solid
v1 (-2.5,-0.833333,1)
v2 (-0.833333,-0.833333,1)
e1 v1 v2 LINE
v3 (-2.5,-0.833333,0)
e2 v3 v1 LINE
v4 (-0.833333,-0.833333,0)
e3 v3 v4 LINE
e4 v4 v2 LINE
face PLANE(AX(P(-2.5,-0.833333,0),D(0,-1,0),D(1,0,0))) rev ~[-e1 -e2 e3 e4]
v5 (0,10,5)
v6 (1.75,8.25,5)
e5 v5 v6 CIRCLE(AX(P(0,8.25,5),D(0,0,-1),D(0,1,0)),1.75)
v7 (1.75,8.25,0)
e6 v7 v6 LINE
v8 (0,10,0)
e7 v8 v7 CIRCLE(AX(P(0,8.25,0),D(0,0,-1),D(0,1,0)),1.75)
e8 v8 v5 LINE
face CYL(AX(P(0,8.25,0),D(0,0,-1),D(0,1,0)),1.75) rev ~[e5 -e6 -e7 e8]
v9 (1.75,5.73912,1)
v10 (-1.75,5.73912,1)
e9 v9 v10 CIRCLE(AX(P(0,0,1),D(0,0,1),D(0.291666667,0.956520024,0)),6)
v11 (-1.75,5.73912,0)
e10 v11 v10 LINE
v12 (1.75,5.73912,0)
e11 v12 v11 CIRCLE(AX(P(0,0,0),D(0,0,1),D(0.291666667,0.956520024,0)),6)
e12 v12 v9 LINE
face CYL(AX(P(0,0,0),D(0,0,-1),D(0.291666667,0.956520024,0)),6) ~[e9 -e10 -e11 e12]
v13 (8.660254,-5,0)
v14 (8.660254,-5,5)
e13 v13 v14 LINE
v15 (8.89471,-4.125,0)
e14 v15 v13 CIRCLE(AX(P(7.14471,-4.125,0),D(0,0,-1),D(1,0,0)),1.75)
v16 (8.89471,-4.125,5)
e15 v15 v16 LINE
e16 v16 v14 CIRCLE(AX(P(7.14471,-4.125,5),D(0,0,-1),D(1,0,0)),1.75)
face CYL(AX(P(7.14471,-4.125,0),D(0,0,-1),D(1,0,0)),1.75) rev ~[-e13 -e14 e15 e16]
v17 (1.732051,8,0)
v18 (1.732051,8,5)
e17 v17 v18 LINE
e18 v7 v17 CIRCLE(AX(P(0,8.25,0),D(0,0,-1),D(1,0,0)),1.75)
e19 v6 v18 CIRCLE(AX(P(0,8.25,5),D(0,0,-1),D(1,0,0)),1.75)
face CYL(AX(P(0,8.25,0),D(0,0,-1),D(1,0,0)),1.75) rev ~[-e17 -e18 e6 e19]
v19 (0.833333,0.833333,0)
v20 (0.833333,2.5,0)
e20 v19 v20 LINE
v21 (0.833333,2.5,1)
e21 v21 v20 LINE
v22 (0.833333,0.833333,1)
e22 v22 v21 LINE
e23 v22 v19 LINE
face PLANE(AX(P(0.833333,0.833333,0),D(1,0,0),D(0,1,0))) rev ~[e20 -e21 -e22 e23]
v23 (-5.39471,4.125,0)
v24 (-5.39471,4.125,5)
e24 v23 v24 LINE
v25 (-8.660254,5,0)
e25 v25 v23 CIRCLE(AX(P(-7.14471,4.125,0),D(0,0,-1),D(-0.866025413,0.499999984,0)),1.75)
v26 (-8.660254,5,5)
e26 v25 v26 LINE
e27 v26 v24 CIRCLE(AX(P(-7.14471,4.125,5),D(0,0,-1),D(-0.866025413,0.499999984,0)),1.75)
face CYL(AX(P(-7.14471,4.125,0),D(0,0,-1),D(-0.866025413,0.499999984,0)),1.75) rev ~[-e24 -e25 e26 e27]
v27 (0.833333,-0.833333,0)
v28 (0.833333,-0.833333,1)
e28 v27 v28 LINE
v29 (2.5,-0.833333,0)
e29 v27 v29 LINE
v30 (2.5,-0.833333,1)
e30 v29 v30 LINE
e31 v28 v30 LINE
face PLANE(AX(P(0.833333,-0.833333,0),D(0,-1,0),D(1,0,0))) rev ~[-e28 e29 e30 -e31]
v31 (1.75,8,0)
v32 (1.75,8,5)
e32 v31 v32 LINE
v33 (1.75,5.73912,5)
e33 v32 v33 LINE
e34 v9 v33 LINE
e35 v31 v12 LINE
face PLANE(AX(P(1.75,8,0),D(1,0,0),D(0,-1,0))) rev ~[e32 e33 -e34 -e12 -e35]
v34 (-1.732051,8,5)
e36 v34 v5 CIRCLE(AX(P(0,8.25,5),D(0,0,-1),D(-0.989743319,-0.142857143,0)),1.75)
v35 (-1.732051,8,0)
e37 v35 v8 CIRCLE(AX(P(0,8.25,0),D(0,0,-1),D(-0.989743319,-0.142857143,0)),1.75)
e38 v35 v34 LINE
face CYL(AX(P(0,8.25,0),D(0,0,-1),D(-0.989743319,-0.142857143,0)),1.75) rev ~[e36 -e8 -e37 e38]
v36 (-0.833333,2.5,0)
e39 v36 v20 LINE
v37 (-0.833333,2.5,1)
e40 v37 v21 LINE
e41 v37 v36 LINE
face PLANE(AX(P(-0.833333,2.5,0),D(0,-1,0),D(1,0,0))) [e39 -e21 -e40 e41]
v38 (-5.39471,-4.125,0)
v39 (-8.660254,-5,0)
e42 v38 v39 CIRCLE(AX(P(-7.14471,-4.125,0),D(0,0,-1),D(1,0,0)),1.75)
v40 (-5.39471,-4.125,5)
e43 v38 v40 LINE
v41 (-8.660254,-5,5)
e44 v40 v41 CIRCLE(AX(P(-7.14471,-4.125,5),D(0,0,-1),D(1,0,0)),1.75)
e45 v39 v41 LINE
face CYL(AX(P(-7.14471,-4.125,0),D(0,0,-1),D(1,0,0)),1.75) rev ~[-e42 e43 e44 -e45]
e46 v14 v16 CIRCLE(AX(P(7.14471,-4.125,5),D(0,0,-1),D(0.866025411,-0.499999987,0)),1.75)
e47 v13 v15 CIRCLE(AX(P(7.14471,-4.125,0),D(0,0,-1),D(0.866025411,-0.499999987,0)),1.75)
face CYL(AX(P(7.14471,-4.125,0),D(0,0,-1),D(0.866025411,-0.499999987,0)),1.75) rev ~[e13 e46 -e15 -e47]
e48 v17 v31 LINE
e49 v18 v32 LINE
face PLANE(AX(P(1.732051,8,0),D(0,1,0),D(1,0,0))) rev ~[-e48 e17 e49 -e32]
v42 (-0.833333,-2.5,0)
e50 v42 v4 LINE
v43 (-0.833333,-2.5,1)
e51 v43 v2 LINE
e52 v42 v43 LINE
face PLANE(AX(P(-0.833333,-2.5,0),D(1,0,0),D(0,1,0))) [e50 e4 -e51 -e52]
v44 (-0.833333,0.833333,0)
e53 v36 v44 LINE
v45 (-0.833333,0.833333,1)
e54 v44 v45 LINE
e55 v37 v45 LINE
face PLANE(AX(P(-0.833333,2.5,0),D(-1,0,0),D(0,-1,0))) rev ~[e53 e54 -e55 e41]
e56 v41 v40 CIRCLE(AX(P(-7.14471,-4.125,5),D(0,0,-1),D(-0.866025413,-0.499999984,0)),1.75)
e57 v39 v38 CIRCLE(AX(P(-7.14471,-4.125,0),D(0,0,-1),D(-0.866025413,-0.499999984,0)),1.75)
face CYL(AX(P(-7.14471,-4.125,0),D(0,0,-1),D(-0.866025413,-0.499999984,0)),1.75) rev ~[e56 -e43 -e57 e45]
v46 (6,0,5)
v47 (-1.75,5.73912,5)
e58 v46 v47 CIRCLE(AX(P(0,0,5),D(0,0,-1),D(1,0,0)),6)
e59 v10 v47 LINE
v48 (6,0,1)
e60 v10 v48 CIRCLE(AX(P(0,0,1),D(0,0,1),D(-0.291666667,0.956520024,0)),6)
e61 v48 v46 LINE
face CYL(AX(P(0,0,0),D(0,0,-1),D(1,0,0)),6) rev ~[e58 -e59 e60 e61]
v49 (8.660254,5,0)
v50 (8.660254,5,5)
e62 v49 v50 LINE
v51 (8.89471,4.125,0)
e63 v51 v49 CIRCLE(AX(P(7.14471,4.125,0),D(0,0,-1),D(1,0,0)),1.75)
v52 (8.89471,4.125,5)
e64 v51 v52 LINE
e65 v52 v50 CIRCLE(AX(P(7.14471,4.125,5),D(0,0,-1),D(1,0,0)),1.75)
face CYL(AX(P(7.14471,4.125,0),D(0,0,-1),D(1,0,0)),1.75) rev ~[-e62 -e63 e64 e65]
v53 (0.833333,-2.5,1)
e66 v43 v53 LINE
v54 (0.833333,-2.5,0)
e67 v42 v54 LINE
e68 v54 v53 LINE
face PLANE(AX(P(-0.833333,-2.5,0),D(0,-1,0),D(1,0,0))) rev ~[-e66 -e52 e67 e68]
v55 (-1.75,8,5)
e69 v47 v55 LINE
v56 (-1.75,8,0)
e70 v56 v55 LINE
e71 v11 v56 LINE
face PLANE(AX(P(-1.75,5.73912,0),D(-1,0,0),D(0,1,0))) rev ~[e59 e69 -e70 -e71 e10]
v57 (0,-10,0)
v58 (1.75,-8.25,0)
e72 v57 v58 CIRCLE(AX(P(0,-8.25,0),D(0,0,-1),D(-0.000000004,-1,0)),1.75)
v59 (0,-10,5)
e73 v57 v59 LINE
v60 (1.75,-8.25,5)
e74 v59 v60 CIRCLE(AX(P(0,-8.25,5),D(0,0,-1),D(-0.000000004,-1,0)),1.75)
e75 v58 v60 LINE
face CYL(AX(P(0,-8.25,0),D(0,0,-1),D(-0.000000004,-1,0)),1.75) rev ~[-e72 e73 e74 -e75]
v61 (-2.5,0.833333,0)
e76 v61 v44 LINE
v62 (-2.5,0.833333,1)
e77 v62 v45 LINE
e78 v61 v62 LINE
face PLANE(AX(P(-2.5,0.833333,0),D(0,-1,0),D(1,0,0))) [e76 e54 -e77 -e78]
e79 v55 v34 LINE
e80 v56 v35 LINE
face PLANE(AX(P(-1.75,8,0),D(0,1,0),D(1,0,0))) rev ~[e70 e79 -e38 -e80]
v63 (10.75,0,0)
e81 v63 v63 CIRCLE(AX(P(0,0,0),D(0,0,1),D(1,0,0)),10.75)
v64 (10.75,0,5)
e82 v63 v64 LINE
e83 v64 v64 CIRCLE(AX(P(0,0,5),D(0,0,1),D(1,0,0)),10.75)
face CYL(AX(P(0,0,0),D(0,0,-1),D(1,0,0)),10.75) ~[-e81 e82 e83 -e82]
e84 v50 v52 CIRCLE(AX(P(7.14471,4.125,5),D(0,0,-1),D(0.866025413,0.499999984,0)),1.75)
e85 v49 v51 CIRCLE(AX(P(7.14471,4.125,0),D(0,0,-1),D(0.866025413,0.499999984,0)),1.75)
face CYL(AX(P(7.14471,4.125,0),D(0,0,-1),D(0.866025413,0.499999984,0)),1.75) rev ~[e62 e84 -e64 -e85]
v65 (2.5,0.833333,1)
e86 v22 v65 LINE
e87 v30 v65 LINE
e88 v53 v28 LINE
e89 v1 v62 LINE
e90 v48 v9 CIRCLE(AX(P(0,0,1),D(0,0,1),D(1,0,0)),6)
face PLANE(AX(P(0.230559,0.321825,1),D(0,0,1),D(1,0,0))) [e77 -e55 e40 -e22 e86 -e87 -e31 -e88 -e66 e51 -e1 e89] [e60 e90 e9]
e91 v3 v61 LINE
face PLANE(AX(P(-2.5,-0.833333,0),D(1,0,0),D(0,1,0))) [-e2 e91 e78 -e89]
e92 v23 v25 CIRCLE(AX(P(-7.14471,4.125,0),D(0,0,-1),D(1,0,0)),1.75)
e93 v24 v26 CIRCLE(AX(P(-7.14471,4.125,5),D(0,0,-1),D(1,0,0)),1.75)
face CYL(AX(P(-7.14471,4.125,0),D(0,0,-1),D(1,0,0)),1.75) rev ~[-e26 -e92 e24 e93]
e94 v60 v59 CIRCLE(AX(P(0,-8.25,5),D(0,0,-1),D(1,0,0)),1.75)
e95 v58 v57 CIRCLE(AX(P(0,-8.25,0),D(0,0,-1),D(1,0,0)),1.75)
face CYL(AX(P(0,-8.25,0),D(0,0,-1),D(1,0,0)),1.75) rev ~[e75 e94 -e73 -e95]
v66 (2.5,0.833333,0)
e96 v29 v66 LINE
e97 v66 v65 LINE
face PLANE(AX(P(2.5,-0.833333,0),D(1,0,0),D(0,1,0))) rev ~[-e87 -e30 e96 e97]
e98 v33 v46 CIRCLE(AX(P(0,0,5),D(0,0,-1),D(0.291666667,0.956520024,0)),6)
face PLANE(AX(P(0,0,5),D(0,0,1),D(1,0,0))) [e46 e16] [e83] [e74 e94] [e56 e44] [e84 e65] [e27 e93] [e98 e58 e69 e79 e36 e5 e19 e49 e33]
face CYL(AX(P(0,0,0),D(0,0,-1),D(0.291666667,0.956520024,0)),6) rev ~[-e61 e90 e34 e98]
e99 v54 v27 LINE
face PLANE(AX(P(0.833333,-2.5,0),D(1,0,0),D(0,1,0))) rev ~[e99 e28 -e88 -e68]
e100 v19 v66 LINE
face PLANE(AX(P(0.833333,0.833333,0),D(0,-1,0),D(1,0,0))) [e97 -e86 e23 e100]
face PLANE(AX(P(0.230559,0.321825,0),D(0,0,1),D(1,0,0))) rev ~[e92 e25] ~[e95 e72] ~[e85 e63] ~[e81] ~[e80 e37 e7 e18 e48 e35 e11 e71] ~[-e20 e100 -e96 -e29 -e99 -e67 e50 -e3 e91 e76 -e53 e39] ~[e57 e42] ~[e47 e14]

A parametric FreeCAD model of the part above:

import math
import FreeCAD as App
import Part
import Sketcher

V = App.Vector


def add_polygon(sketch, points):
    """Adds a closed chain of lines whose ends are joined by coincident constraints."""
    first, n = sketch.GeometryCount, len(points)
    for a, b in zip(points, points[1:] + points[:1]):
        sketch.addGeometry(Part.LineSegment(App.Vector(*a, 0), App.Vector(*b, 0)), False)
    for i in range(n):
        sketch.addConstraint(Sketcher.Constraint("Coincident", first + i, 2, first + (i + 1) % n, 1))

doc = App.newDocument("Part")
body = doc.addObject("PartDesign::Body", "Body")

# Sketch on XY plane
sketch1 = doc.addObject("Sketcher::SketchObject", "Sketch")
body.addObject(sketch1)
sketch1.AttachmentSupport = (doc.XY_Plane, [""])
sketch1.MapMode = "FlatFace"
sketch1.addGeometry([
    Part.Circle(V(0, 0, 0), V(0, 0, 1), 10.75),  # 0
    Part.ArcOfCircle(Part.Circle(V(0, -8.25, 0), V(0, 0, 1), 1.75), math.radians(0), math.radians(270)),  # 1
    Part.ArcOfCircle(Part.Circle(V(0, -8.25, 0), V(0, 0, 1), 1.75), math.radians(-90), math.radians(0)),  # 2
    Part.ArcOfCircle(Part.Circle(V(-7.145, -4.125, 0), V(0, 0, 1), 1.75), math.radians(0), math.radians(210)),  # 3
    Part.ArcOfCircle(Part.Circle(V(-7.145, -4.125, 0), V(0, 0, 1), 1.75), math.radians(-150), math.radians(0)),  # 4
    Part.ArcOfCircle(Part.Circle(V(7.145, -4.125, 0), V(0, 0, 1), 1.75), math.radians(0), math.radians(330)),  # 5
    Part.ArcOfCircle(Part.Circle(V(7.145, -4.125, 0), V(0, 0, 1), 1.75), math.radians(-30), math.radians(0)),  # 6
    Part.ArcOfCircle(Part.Circle(V(-7.145, 4.125, 0), V(0, 0, 1), 1.75), math.radians(0), math.radians(150)),  # 7
    Part.ArcOfCircle(Part.Circle(V(-7.145, 4.125, 0), V(0, 0, 1), 1.75), math.radians(150), math.radians(360)),  # 8
    Part.LineSegment(V(1.75, 8, 0), V(1.75, 5.739, 0)),  # 9
    Part.ArcOfCircle(Part.Circle(V(0, 0, 0), V(0, 0, 1), 6), math.radians(0), math.radians(73)),  # 10
    Part.ArcOfCircle(Part.Circle(V(0, 0, 0), V(0, 0, 1), 6), math.radians(107), math.radians(360)),  # 11
    Part.LineSegment(V(-1.75, 5.739, 0), V(-1.75, 8, 0)),  # 12
    Part.LineSegment(V(-1.75, 8, 0), V(-1.732, 8, 0)),  # 13
    Part.ArcOfCircle(Part.Circle(V(0, 8.25, 0), V(0, 0, 1), 1.75), math.radians(90), math.radians(188)),  # 14
    Part.ArcOfCircle(Part.Circle(V(0, 8.25, 0), V(0, 0, 1), 1.75), math.radians(0), math.radians(90)),  # 15
    Part.ArcOfCircle(Part.Circle(V(0, 8.25, 0), V(0, 0, 1), 1.75), math.radians(-8.21), math.radians(0)),  # 16
    Part.LineSegment(V(1.732, 8, 0), V(1.75, 8, 0)),  # 17
    Part.ArcOfCircle(Part.Circle(V(7.145, 4.125, 0), V(0, 0, 1), 1.75), math.radians(0), math.radians(30)),  # 18
    Part.ArcOfCircle(Part.Circle(V(7.145, 4.125, 0), V(0, 0, 1), 1.75), math.radians(30), math.radians(360)),  # 19
], False)
sketch1.addConstraint([
    Sketcher.Constraint("Tangent", 1, 1, 2, 2),
    Sketcher.Constraint("Coincident", 2, 1, 1, 2),
    Sketcher.Constraint("Tangent", 3, 1, 4, 2),
    Sketcher.Constraint("Coincident", 4, 1, 3, 2),
    Sketcher.Constraint("Tangent", 5, 1, 6, 2),
    Sketcher.Constraint("Coincident", 6, 1, 5, 2),
    Sketcher.Constraint("Tangent", 7, 1, 8, 2),
    Sketcher.Constraint("Coincident", 8, 1, 7, 2),
    Sketcher.Constraint("Coincident", 9, 2, 10, 2),
    Sketcher.Constraint("Tangent", 10, 1, 11, 2),
    Sketcher.Constraint("Coincident", 11, 1, 12, 1),
    Sketcher.Constraint("Coincident", 12, 2, 13, 1),
    Sketcher.Constraint("Coincident", 13, 2, 14, 2),
    Sketcher.Constraint("Tangent", 14, 1, 15, 2),
    Sketcher.Constraint("Tangent", 15, 1, 16, 2),
    Sketcher.Constraint("Coincident", 16, 1, 17, 1),
    Sketcher.Constraint("Coincident", 17, 2, 9, 1),
    Sketcher.Constraint("Tangent", 18, 1, 19, 2),
    Sketcher.Constraint("Coincident", 19, 1, 18, 2),
    Sketcher.Constraint("Vertical", 9),
    Sketcher.Constraint("Vertical", 12),
    Sketcher.Constraint("Horizontal", 13),
    Sketcher.Constraint("Horizontal", 17),
    Sketcher.Constraint("Coincident", 0, 3, -1, 1),
    Sketcher.Constraint("Coincident", 10, 3, -1, 1),
    Sketcher.Constraint("Coincident", 16, 3, 14, 3),
    Sketcher.Constraint("Equal", 2, 3),
    Sketcher.Constraint("Equal", 4, 5),
    Sketcher.Constraint("Equal", 6, 7),
    Sketcher.Constraint("Equal", 10, 11),
    Sketcher.Constraint("Equal", 8, 14),
    Sketcher.Constraint("Equal", 16, 18),
    Sketcher.Constraint("Symmetric", 5, 3, 7, 3, -1, 1),
    Sketcher.Constraint("Symmetric", 1, 3, 14, 3, -1, 1),
    Sketcher.Constraint("Symmetric", 3, 3, 18, 3, -1, 1),
    Sketcher.Constraint("Symmetric", 3, 3, 5, 3, -2),
    Sketcher.Constraint("Symmetric", 13, 2, 16, 1, -2),
    Sketcher.Constraint("PointOnObject", 2, 1, -2),
    Sketcher.Constraint("PointOnObject", 10, 1, -1),
    Sketcher.Constraint("PointOnObject", 14, 1, -2),
    Sketcher.Constraint("Horizontal", 2, 3, 1, 1),
    Sketcher.Constraint("Horizontal", 6, 3, 3, 1),
    Sketcher.Constraint("Horizontal", 3, 1, 5, 1),
    Sketcher.Constraint("Horizontal", 4, 1, 6, 1),
    Sketcher.Constraint("Horizontal", 19, 3, 7, 1),
    Sketcher.Constraint("Horizontal", 9, 2, 11, 1),
    Sketcher.Constraint("Horizontal", 16, 3, 15, 1),
    Sketcher.Constraint("Horizontal", 7, 1, 18, 1),
    Sketcher.Constraint("Horizontal", 8, 1, 19, 1),
    Sketcher.Constraint("Vertical", 4, 1, 8, 1),
    Sketcher.Constraint("Vertical", 1, 1, 9, 2),
    Sketcher.Constraint("Radius", 10, 6.0),
    Sketcher.Constraint("Diameter", 0, 21.5),
    Sketcher.Constraint("Radius", 1, 1.75),
    Sketcher.Constraint("DistanceY", 2, 1, -1, 1, 10.0),
    Sketcher.Constraint("DistanceY", 4, 1, -1, 1, 5.0),
    Sketcher.Constraint("DistanceY", -1, 1, 12, 2, 8.0),
    Sketcher.Constraint("DistanceY", 3, 3, 7, 3, 8.25),
    Sketcher.Constraint("DistanceX", 3, 3, -1, 1, 7.14471),
])
pad1 = doc.addObject("PartDesign::Pad", "Pad")
body.addObject(pad1)
pad1.Profile = sketch1
pad1.Length = 5

# Sketch on XY plane
sketch2 = doc.addObject("Sketcher::SketchObject", "Sketch001")
body.addObject(sketch2)
sketch2.AttachmentSupport = (doc.XY_Plane, [""])
sketch2.MapMode = "FlatFace"
sketch2.addGeometry([
    Part.ArcOfCircle(Part.Circle(V(0, 0, 0), V(0, 0, 1), 6), math.radians(107), math.radians(360)),
    Part.ArcOfCircle(Part.Circle(V(0, 0, 0), V(0, 0, 1), 6), math.radians(0), math.radians(73)),
    Part.ArcOfCircle(Part.Circle(V(0, 0, 0), V(0, 0, 1), 6), math.radians(73), math.radians(107)),
], False)
sketch2.addConstraint([
    Sketcher.Constraint("Tangent", 0, 2, 1, 1),
    Sketcher.Constraint("Tangent", 1, 2, 2, 1),
    Sketcher.Constraint("Tangent", 2, 2, 0, 1),
    Sketcher.Constraint("Coincident", 0, 3, -1, 1),
    Sketcher.Constraint("PointOnObject", 0, 2, -1),
    Sketcher.Constraint("Horizontal", 1, 2, 2, 2),
    Sketcher.Constraint("Radius", 0, 6.0),
    Sketcher.Constraint("DistanceX", 2, 2, 1, 2, 3.5),
])
pad2 = doc.addObject("PartDesign::Pad", "Pad001")
body.addObject(pad2)
pad2.Profile = sketch2
pad2.Length = 1

# Sketch on XY plane
sketch3 = doc.addObject("Sketcher::SketchObject", "Sketch002")
body.addObject(sketch3)
sketch3.AttachmentSupport = (doc.XY_Plane, [""])
sketch3.MapMode = "FlatFace"
add_polygon(sketch3, [(-0.8, 2.5), (-0.8, 0.8), (-2.5, 0.8), (-2.5, -0.8), (-0.8, -0.8), (-0.8, -2.5), (0.8, -2.5), (0.8, -0.8), (2.5, -0.8), (2.5, 0.8), (0.8, 0.8), (0.8, 2.5)])  # lines 0-11
sketch3.addConstraint([
    Sketcher.Constraint("Vertical", 0),
    Sketcher.Constraint("Horizontal", 1),
    Sketcher.Constraint("Vertical", 2),
    Sketcher.Constraint("Horizontal", 3),
    Sketcher.Constraint("Vertical", 4),
    Sketcher.Constraint("Horizontal", 5),
    Sketcher.Constraint("Vertical", 6),
    Sketcher.Constraint("Horizontal", 7),
    Sketcher.Constraint("Vertical", 8),
    Sketcher.Constraint("Horizontal", 9),
    Sketcher.Constraint("Vertical", 10),
    Sketcher.Constraint("Horizontal", 11),
    Sketcher.Constraint("Symmetric", 0, 2, 6, 2, -1, 1),
    Sketcher.Constraint("Symmetric", 2, 2, 8, 2, -1, 1),
    Sketcher.Constraint("Symmetric", 4, 2, 10, 2, -1, 1),
    Sketcher.Constraint("Symmetric", 3, 2, 6, 2, -2),
    Sketcher.Constraint("Equal", 3, 5),
    Sketcher.Constraint("Equal", 11, 0),
    Sketcher.Constraint("Equal", 0, 2),
    Sketcher.Constraint("DistanceX", 1, 2, -1, 1, 2.5),
])
pocket1 = doc.addObject("PartDesign::Pocket", "Pocket")
body.addObject(pocket1)
pocket1.Profile = sketch3
pocket1.Length = 25
pocket1.Midplane = True

doc.recompute()
